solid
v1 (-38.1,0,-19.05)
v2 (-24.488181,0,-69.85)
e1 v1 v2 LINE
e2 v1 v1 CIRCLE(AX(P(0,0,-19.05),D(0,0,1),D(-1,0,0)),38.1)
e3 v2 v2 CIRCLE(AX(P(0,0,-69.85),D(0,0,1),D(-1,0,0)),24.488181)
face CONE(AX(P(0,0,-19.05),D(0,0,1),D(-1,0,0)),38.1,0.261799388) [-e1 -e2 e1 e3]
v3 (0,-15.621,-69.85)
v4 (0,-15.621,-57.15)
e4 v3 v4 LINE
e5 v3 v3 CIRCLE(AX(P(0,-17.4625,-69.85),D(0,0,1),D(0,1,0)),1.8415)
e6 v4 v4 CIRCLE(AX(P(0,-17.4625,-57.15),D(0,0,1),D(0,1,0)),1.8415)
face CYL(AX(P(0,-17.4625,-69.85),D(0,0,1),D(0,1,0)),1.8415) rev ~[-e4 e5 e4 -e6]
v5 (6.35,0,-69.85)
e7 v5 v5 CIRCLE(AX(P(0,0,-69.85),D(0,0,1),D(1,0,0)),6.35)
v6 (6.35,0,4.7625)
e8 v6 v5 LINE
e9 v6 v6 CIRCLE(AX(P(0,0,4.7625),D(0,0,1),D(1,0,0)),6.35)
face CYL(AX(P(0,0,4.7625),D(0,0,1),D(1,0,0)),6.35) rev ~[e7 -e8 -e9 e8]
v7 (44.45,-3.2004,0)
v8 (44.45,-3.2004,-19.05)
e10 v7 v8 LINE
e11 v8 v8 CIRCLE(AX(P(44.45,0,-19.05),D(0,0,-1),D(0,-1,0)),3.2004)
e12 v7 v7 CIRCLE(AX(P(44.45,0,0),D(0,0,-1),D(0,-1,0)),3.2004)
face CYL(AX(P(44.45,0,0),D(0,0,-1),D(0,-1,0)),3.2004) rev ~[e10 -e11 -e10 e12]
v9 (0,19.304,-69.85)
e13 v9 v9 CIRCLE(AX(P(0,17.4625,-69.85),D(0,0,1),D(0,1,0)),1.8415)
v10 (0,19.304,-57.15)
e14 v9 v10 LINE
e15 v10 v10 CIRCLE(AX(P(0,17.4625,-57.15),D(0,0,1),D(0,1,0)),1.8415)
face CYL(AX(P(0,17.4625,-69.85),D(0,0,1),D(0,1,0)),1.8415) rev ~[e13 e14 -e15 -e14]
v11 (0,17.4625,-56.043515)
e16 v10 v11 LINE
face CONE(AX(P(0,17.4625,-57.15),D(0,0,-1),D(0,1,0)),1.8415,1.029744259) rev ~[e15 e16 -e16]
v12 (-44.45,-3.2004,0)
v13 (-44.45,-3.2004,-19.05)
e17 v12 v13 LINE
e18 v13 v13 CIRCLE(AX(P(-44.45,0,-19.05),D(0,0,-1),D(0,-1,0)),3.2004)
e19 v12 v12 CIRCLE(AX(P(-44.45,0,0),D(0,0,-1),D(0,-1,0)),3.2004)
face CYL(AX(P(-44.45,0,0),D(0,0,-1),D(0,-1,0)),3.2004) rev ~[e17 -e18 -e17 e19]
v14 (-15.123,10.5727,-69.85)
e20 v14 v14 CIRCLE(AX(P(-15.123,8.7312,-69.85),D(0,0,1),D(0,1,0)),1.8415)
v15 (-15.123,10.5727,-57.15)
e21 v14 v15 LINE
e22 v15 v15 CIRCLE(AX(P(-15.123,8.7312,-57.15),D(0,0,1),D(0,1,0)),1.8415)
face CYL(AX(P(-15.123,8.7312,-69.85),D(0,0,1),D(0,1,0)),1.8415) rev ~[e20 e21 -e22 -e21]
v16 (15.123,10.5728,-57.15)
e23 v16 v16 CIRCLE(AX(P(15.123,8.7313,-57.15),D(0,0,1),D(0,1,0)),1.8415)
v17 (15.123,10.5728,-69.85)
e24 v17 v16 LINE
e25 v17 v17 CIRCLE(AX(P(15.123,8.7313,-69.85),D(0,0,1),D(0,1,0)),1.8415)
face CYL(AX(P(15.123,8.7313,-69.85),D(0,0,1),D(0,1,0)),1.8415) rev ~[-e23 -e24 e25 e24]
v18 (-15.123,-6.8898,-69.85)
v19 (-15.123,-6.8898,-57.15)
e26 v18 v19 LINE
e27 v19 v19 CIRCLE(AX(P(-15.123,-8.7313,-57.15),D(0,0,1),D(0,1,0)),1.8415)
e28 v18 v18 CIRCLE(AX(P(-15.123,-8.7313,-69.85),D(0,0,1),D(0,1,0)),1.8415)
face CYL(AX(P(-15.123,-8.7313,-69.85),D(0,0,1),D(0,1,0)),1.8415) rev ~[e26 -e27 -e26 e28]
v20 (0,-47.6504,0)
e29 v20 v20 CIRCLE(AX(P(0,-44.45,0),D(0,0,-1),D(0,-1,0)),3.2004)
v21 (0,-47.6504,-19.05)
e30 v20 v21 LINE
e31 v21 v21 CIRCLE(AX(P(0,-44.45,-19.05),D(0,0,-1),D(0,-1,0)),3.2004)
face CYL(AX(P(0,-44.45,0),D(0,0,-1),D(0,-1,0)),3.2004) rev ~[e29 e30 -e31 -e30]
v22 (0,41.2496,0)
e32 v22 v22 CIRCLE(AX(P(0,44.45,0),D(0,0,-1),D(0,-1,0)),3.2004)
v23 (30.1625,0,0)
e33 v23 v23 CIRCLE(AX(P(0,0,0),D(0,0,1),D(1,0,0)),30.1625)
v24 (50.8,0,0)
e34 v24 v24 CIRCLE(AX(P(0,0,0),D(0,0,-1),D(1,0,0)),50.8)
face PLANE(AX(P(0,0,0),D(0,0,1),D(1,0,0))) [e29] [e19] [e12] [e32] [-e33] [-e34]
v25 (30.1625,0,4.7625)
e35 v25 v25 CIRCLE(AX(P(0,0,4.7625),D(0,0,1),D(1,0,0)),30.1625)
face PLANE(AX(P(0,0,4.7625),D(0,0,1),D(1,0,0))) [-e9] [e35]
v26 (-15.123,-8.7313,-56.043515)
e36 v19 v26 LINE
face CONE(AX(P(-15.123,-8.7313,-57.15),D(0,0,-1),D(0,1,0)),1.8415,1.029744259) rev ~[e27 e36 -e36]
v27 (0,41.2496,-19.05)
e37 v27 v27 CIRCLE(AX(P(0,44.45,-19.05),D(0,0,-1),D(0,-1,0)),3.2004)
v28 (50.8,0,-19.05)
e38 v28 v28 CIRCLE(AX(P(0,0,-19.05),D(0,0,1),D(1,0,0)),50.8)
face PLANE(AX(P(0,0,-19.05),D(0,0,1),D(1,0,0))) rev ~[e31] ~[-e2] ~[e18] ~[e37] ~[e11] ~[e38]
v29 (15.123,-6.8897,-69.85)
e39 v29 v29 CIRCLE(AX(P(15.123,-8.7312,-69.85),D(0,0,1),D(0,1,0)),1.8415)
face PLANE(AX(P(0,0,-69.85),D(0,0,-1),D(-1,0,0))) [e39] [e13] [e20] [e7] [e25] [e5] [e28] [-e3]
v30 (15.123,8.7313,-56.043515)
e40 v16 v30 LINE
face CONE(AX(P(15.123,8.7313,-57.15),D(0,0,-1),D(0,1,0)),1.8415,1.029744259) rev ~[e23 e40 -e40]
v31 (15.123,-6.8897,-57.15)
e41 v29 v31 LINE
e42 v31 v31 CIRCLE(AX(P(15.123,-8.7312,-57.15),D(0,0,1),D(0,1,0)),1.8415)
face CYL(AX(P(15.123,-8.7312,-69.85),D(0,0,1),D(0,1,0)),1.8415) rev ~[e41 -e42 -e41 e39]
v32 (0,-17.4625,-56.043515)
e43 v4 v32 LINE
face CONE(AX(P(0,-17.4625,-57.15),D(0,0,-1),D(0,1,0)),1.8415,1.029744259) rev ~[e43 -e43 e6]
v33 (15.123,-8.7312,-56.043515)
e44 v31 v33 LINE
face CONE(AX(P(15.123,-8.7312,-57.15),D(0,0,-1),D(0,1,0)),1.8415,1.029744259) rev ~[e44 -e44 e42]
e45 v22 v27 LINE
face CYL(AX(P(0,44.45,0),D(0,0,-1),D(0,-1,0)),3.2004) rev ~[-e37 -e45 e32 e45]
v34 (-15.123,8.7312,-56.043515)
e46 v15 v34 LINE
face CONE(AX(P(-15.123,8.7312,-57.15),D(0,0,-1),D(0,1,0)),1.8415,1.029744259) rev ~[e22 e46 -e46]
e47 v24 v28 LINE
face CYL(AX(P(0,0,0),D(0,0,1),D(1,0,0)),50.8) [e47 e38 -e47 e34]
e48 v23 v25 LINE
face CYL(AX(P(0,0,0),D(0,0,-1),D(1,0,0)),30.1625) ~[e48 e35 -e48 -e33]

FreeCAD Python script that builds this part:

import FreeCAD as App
import Part
import Sketcher

V = App.Vector
Q = App.Units.Quantity

doc = App.newDocument("Part")
params = doc.addObject("Spreadsheet::Sheet", "Params")
for row, (alias, value) in enumerate([
    ("sketch1_diameter", "4 in"),
    ("pad1_length", "0.75 in"),
    ("sketch2_diameter", "2.375 in"),
    ("pad2_length", "0.1875 in"),
    ("sketch3_diameter", "0.252 in"),
    ("hole_diameter", "0.252 in"),
    ("sketch4_diameter", "3 in"),
    ("pad3_length", "2 in"),
    ("pad3_taper", "-15 deg"),
    ("sketch5_diameter", "0.145 in"),
    ("hole2_diameter", "0.145 in"),
    ("hole2_depth", "0.5 in"),
    ("sketch6_diameter", "0.5 in"),
], start=1):
    params.set(f"A{row}", alias)
    params.set(f"B{row}", "=" + value)
    params.setAlias(f"B{row}", alias)

body = doc.addObject("PartDesign::Body", "Body")

sketch1 = doc.addObject("Sketcher::SketchObject", "Sketch")
body.addObject(sketch1)
sketch1.AttachmentSupport = (doc.XY_Plane, [""])
sketch1.MapMode = "FlatFace"
sketch1.addGeometry(Part.Circle(V(0, 0, 0), V(0, 0, 1), 50.8), False)
sketch1.addConstraint([
    Sketcher.Constraint("Coincident", 0, 3, -1, 1),
    Sketcher.Constraint("Diameter", 0, Q("4 in")),
])
sketch1.setExpression("Constraints[1]", "Params.sketch1_diameter")
pad1 = doc.addObject("PartDesign::Pad", "Pad")
body.addObject(pad1)
pad1.Profile = sketch1
pad1.setExpression("Length", "Params.pad1_length")
pad1.Reversed = True

sketch2 = doc.addObject("Sketcher::SketchObject", "Sketch001")
body.addObject(sketch2)
sketch2.AttachmentSupport = (doc.XY_Plane, [""])
sketch2.MapMode = "FlatFace"
sketch2.addGeometry(Part.Circle(V(0, 0, 0), V(0, 0, 1), 30.1625), False)
sketch2.addConstraint([
    Sketcher.Constraint("Coincident", 0, 3, -1, 1),
    Sketcher.Constraint("Diameter", 0, Q("2.375 in")),
])
sketch2.setExpression("Constraints[1]", "Params.sketch2_diameter")
pad2 = doc.addObject("PartDesign::Pad", "Pad001")
body.addObject(pad2)
pad2.Profile = sketch2
pad2.setExpression("Length", "Params.pad2_length")

sketch3 = doc.addObject("Sketcher::SketchObject", "Sketch002")
body.addObject(sketch3)
sketch3.AttachmentSupport = (doc.XY_Plane, [""])
sketch3.MapMode = "FlatFace"
sketch3.addGeometry([
    Part.Circle(V(0, 44.45, 0), V(0, 0, 1), 3.2004),
    Part.Circle(V(-44.45, 0, 0), V(0, 0, 1), 3.2004),
    Part.Circle(V(0, -44.45, 0), V(0, 0, 1), 3.2004),
    Part.Circle(V(44.45, 0, 0), V(0, 0, 1), 3.2004),
], False)
sketch3.addConstraint([
    Sketcher.Constraint("Equal", 0, 1),
    Sketcher.Constraint("Equal", 1, 2),
    Sketcher.Constraint("Equal", 2, 3),
    Sketcher.Constraint("Symmetric", 0, 3, 2, 3, -1, 1),
    Sketcher.Constraint("Symmetric", 1, 3, 3, 3, -1, 1),
    Sketcher.Constraint("PointOnObject", 0, 3, -2),
    Sketcher.Constraint("PointOnObject", 1, 3, -1),
    Sketcher.Constraint("Diameter", 0, Q("0.252 in")),
    Sketcher.Constraint("DistanceY", 2, 3, 0, 3, Q("3.5 in")),
    Sketcher.Constraint("DistanceX", 1, 3, 3, 3, Q("3.5 in")),
])
sketch3.setExpression("Constraints[7]", "Params.sketch3_diameter")
doc.recompute()
hole = doc.addObject("PartDesign::Hole", "Hole")
body.addObject(hole)
hole.Profile = sketch3
hole.ThreadType = "None"
hole.setExpression("Diameter", "Params.hole_diameter")
hole.DepthType = "ThroughAll"

sketch4 = doc.addObject("Sketcher::SketchObject", "Sketch003")
body.addObject(sketch4)
sketch4.AttachmentSupport = (doc.XY_Plane, [""])
sketch4.MapMode = "FlatFace"
sketch4.AttachmentOffset = App.Placement(V(0, 0, -0.75 * 25.4), App.Rotation())
sketch4.addGeometry(Part.Circle(V(0, 0, 0), V(0, 0, 1), 38.1), False)
sketch4.addConstraint([
    Sketcher.Constraint("Coincident", 0, 3, -1, 1),
    Sketcher.Constraint("Diameter", 0, Q("3 in")),
])
sketch4.setExpression("Constraints[1]", "Params.sketch4_diameter")
pad3 = doc.addObject("PartDesign::Pad", "Pad002")
body.addObject(pad3)
pad3.Profile = sketch4
pad3.setExpression("Length", "Params.pad3_length")
pad3.Reversed = True
pad3.setExpression("TaperAngle", "Params.pad3_taper")

sketch5 = doc.addObject("Sketcher::SketchObject", "Sketch004")
body.addObject(sketch5)
sketch5.AttachmentSupport = (doc.XY_Plane, [""])
sketch5.MapMode = "FlatFace"
sketch5.AttachmentOffset = App.Placement(V(0, 0, -2.75 * 25.4), App.Rotation())
sketch5.addGeometry([
    Part.Circle(V(0, 17.4625, 0), V(0, 0, 1), 1.8415),
    Part.Circle(V(15.123, 8.7313, 0), V(0, 0, 1), 1.8415),
    Part.Circle(V(15.123, -8.7312, 0), V(0, 0, 1), 1.8415),
    Part.Circle(V(0, -17.4625, 0), V(0, 0, 1), 1.8415),
    Part.Circle(V(-15.123, -8.7313, 0), V(0, 0, 1), 1.8415),
    Part.Circle(V(-15.123, 8.7312, 0), V(0, 0, 1), 1.8415),
], False)
sketch5.addConstraint([
    Sketcher.Constraint("Equal", 0, 1),
    Sketcher.Constraint("Equal", 1, 2),
    Sketcher.Constraint("Equal", 2, 3),
    Sketcher.Constraint("Equal", 3, 4),
    Sketcher.Constraint("Equal", 4, 5),
    Sketcher.Constraint("Symmetric", 0, 3, 3, 3, -1, 1),
    Sketcher.Constraint("Symmetric", 1, 3, 4, 3, -1, 1),
    Sketcher.Constraint("Symmetric", 2, 3, 5, 3, -1, 1),
    Sketcher.Constraint("Symmetric", 2, 3, 4, 3, -2),
    Sketcher.Constraint("PointOnObject", 0, 3, -2),
    Sketcher.Constraint("Diameter", 0, Q("0.145 in")),
    Sketcher.Constraint("DistanceY", -1, 1, 0, 3, Q("0.6875 in")),
    Sketcher.Constraint("DistanceY", -1, 1, 1, 3, Q("0.343752 in")),
    Sketcher.Constraint("DistanceX", -1, 1, 1, 3, Q("0.5954 in")),
])
sketch5.setExpression("Constraints[10]", "Params.sketch5_diameter")
doc.recompute()
hole2 = doc.addObject("PartDesign::Hole", "Hole001")
body.addObject(hole2)
hole2.Profile = sketch5
hole2.ThreadType = "None"
hole2.setExpression("Diameter", "Params.hole2_diameter")
hole2.DepthType = "Dimension"
hole2.setExpression("Depth", "Params.hole2_depth")
hole2.DrillPoint = "Angled"
hole2.DrillPointAngle = 118
hole2.Reversed = True

sketch6 = doc.addObject("Sketcher::SketchObject", "Sketch005")
body.addObject(sketch6)
sketch6.AttachmentSupport = (doc.XY_Plane, [""])
sketch6.MapMode = "FlatFace"
sketch6.AttachmentOffset = App.Placement(V(0, 0, 0.1875 * 25.4), App.Rotation())
sketch6.addGeometry(Part.Circle(V(0, 0, 0), V(0, 0, 1), 6.35), False)
sketch6.addConstraint([
    Sketcher.Constraint("Coincident", 0, 3, -1, 1),
    Sketcher.Constraint("Diameter", 0, Q("0.5 in")),
])
sketch6.setExpression("Constraints[1]", "Params.sketch6_diameter")
pocket1 = doc.addObject("PartDesign::Pocket", "Pocket")
body.addObject(pocket1)
pocket1.Profile = sketch6
pocket1.Type = "ThroughAll"

doc.recompute()
